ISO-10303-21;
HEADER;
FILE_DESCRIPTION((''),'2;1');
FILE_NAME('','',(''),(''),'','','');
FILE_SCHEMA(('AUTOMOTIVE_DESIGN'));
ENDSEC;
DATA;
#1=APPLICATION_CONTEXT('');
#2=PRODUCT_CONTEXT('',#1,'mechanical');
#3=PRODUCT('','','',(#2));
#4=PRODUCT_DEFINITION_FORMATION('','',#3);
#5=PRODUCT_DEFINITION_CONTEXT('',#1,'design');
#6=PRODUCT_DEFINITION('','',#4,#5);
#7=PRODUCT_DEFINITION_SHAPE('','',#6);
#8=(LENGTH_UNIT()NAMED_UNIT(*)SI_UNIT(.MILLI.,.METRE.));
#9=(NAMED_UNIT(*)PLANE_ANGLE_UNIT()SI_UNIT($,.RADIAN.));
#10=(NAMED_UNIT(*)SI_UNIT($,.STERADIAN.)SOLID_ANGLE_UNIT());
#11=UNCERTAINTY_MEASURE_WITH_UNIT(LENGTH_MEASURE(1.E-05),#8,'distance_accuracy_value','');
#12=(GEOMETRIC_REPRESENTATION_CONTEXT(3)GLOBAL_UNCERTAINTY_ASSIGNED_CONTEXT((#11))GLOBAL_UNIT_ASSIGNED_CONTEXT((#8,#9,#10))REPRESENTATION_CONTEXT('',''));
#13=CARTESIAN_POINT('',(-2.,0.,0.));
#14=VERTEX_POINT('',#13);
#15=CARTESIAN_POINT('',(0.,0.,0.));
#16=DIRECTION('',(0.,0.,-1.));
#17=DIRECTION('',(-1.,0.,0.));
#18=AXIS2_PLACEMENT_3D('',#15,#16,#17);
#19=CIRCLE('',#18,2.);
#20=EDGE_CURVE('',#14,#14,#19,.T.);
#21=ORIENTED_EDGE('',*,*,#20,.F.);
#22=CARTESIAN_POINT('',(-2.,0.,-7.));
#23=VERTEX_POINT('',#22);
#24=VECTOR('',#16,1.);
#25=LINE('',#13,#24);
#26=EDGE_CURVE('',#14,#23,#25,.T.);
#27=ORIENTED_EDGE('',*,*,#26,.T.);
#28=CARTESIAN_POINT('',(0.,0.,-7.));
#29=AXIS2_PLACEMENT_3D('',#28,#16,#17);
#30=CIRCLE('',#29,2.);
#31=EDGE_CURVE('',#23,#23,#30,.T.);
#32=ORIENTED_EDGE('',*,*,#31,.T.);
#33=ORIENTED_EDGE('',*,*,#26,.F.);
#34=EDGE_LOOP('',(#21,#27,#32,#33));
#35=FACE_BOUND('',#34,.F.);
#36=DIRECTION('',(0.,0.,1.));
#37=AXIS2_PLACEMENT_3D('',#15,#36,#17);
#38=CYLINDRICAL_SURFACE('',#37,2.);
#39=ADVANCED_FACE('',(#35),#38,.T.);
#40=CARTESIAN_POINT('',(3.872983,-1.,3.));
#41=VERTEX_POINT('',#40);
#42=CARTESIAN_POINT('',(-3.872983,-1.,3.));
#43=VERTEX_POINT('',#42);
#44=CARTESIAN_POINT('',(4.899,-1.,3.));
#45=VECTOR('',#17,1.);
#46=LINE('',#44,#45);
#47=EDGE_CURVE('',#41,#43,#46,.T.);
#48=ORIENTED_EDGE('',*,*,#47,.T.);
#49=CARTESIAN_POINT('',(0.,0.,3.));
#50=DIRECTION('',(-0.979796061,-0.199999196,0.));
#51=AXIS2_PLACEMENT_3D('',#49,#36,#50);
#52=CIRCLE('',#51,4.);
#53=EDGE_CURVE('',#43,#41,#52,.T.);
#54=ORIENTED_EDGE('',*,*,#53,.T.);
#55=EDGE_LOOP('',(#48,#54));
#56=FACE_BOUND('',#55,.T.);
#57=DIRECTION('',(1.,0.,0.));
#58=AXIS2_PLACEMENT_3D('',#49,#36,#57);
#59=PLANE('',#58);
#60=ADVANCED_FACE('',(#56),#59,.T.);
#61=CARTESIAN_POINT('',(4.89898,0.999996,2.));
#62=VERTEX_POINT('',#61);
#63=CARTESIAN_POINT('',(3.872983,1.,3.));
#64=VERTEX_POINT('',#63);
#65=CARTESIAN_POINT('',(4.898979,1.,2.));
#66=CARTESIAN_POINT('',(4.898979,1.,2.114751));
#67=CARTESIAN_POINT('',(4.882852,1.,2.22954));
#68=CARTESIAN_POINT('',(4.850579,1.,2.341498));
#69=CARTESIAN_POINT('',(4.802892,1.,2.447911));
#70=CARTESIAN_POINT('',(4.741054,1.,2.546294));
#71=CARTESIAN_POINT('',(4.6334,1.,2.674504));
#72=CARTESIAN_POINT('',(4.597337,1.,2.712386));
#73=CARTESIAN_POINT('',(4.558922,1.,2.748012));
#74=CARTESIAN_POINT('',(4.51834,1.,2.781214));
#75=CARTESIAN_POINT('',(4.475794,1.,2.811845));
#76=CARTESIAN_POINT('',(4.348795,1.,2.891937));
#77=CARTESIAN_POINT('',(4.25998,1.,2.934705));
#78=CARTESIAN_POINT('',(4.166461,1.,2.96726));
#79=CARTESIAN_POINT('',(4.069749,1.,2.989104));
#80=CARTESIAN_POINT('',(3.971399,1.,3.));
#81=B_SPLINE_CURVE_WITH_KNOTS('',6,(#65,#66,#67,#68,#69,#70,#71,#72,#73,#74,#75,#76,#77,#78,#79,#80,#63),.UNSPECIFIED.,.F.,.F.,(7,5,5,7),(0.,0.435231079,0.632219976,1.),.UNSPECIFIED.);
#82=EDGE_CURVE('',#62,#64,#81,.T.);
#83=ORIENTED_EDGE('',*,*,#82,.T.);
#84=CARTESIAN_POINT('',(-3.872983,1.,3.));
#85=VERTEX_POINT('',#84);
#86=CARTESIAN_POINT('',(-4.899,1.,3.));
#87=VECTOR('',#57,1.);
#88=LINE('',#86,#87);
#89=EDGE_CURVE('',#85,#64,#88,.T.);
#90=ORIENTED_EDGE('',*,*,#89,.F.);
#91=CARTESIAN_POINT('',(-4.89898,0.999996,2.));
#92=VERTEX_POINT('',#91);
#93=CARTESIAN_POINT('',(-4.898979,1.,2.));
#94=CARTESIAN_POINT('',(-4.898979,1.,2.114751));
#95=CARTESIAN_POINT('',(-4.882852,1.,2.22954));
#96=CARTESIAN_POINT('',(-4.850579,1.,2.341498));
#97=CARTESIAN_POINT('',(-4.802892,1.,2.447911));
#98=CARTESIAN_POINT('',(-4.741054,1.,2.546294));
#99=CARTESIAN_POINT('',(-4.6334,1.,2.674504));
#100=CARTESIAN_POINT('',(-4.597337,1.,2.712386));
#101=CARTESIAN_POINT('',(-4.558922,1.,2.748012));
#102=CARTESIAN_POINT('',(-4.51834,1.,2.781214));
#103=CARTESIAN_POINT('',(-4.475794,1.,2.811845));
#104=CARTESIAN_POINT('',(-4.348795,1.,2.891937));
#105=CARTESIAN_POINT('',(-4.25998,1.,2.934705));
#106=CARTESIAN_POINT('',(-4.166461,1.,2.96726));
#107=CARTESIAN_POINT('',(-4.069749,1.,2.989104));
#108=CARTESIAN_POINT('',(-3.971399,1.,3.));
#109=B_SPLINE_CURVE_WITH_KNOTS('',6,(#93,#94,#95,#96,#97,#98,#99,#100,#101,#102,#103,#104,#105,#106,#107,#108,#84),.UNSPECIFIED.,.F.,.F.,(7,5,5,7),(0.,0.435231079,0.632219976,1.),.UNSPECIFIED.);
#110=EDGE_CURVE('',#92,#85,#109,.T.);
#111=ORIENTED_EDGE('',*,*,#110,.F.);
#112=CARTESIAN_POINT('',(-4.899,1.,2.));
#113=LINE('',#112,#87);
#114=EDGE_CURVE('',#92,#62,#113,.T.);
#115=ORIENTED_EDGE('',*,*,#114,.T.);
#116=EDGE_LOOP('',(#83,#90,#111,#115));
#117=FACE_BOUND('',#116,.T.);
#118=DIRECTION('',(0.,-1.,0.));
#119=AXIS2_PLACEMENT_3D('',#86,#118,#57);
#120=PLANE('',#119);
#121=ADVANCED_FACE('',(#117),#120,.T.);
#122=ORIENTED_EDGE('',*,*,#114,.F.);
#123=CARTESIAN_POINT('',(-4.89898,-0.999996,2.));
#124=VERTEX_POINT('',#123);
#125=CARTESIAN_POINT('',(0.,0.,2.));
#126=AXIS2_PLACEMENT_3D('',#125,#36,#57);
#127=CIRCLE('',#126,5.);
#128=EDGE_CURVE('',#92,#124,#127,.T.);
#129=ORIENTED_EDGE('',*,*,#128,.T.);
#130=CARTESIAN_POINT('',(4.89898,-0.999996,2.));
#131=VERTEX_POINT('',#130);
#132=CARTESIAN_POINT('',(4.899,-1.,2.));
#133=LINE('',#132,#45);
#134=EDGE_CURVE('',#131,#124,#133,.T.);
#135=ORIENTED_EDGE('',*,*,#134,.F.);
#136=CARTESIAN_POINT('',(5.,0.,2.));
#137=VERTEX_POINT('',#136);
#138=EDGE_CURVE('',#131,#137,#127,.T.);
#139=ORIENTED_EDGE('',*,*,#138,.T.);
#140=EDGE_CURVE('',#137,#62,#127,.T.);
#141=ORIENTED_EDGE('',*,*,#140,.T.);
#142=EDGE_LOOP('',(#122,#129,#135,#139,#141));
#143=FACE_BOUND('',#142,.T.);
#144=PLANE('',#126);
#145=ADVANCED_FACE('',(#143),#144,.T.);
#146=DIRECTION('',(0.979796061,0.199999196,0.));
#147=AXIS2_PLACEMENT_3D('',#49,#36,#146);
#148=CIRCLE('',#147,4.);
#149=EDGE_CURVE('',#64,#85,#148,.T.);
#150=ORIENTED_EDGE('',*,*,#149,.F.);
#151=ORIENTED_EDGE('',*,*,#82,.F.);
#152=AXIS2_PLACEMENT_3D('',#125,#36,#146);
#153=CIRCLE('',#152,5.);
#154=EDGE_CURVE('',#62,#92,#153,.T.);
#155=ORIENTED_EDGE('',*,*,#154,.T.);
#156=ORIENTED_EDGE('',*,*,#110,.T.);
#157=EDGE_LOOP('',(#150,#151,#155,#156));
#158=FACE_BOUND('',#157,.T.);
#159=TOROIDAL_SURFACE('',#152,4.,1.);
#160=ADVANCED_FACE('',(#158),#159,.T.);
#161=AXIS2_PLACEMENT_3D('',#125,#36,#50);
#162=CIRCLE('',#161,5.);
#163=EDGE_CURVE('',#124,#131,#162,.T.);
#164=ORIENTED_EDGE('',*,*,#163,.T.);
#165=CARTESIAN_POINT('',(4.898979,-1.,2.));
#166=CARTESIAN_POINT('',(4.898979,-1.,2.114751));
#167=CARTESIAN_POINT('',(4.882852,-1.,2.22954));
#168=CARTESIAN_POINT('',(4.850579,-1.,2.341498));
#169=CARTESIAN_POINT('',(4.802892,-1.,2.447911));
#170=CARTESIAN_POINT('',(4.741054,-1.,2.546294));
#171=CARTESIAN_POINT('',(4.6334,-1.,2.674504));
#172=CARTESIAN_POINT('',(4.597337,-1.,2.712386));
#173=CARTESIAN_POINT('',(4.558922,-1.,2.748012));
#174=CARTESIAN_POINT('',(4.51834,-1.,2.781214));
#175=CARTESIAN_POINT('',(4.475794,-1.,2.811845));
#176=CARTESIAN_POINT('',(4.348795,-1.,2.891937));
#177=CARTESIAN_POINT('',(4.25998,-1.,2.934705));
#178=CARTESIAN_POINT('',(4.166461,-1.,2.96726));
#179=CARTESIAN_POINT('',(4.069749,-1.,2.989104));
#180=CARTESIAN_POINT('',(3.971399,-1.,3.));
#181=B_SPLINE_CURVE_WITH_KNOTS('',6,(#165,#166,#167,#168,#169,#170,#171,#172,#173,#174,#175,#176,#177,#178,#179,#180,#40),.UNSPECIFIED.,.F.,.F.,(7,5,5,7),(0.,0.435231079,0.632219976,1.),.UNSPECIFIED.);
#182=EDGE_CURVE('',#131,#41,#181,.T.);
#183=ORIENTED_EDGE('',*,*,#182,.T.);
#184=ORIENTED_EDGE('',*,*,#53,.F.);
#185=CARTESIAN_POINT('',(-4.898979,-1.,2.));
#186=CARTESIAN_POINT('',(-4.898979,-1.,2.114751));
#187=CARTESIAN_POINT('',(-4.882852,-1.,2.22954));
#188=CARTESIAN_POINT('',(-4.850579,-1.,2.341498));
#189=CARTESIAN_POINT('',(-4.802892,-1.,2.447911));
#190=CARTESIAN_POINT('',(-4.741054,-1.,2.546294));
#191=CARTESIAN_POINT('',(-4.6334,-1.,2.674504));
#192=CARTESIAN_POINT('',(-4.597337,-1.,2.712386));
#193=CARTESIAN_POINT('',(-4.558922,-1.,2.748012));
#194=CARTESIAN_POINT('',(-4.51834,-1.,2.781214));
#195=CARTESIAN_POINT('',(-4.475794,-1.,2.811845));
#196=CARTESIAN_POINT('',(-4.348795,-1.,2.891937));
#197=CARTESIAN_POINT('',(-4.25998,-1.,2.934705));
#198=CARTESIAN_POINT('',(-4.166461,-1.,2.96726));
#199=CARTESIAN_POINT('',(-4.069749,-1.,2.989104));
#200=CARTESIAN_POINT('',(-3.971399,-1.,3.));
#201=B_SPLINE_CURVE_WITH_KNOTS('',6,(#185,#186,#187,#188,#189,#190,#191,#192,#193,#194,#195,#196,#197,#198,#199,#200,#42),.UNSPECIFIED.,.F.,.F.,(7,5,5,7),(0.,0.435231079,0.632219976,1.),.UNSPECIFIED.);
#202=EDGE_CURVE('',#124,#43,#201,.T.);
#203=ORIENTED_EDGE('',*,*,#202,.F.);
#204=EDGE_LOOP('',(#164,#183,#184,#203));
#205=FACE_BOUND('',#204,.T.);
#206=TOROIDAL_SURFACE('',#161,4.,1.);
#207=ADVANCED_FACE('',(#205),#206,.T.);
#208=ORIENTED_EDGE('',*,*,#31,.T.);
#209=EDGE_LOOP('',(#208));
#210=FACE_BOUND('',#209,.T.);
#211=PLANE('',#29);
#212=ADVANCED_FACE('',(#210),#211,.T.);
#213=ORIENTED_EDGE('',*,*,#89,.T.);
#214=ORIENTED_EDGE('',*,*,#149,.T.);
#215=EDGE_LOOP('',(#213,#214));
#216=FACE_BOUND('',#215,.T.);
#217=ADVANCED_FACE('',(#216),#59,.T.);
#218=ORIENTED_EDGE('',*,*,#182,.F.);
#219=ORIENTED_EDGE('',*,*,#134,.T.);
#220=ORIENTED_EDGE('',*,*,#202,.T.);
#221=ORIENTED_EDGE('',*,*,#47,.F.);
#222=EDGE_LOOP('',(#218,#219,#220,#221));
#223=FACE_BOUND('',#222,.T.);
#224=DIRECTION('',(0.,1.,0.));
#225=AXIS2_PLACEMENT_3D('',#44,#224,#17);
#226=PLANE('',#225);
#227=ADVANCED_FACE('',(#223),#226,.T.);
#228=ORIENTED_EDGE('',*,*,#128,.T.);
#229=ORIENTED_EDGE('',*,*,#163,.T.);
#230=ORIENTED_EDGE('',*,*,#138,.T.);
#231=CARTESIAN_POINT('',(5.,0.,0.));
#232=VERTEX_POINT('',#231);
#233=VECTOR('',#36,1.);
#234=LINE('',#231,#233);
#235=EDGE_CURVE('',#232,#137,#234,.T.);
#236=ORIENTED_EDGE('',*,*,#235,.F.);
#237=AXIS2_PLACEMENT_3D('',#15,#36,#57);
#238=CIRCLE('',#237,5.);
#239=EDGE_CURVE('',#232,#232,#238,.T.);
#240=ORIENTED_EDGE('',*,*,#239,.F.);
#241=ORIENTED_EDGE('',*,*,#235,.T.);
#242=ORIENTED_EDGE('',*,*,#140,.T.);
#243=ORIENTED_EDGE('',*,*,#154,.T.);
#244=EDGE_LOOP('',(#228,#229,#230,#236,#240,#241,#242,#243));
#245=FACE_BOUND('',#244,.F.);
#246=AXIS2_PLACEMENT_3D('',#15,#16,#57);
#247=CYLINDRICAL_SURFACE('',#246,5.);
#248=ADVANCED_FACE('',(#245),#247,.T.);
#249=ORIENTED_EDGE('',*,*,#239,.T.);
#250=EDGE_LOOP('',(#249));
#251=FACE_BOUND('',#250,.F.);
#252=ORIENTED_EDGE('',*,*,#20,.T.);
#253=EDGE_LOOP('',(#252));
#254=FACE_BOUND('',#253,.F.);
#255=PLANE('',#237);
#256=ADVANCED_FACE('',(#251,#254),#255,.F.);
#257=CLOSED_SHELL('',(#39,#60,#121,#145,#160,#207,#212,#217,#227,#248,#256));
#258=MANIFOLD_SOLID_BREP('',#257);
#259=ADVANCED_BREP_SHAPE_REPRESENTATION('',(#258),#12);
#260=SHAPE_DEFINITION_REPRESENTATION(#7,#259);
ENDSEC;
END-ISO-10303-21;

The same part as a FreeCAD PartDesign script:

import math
import FreeCAD as App
import Part
import Sketcher
Q = App.Units.Quantity


def edges_at(feature, points):
    """Names of the edges that pass closest to the given points."""
    edges = feature.Shape.Edges
    near = lambda p: min(range(len(edges)), key=lambda i: edges[i].distToShape(Part.Vertex(*p))[0])
    return sorted({f"Edge{near(p) + 1}" for p in points})

doc = App.newDocument("Part")
params = doc.addObject("Spreadsheet::Sheet", "Params")
for row, (alias, value) in enumerate([
    ("sketch1_diameter", "10 mm"),
    ("pad1_length", "3 mm"),
    ("sketch2_radius", "5 mm"),
    ("pocket1_length", "1 mm"),
    ("fillet_radius", "1 mm"),
    ("sketch3_diameter", "4 mm"),
    ("pad2_length", "7 mm"),
], start=1):
    params.set(f"A{row}", alias)
    params.set(f"B{row}", "=" + value)
    params.setAlias(f"B{row}", alias)

body = doc.addObject("PartDesign::Body", "Body")

# Sketch on XY plane
sketch1 = body.newObject("Sketcher::SketchObject", "Sketch")
sketch1.AttachmentSupport = (doc.getObject("XY_Plane"), [""])
sketch1.MapMode = "FlatFace"
sketch1.addGeometry(Part.Circle(App.Vector(0, 0, 0), App.Vector(0, 0, 1), 5), False)
sketch1.addConstraint([
    Sketcher.Constraint("Coincident", 0, 3, -1, 1),
    Sketcher.Constraint("Diameter", 0, Q("10 mm")),
])
sketch1.setExpression("Constraints[1]", "Params.sketch1_diameter")
pad1 = body.newObject("PartDesign::Pad", "Pad")
pad1.Profile = sketch1
pad1.setExpression("Length", "Params.pad1_length")

# Sketch on XY plane
sketch2 = body.newObject("Sketcher::SketchObject", "Sketch001")
sketch2.AttachmentSupport = (doc.getObject("XY_Plane"), [""])
sketch2.MapMode = "FlatFace"
sketch2.AttachmentOffset = App.Placement(App.Vector(0, 0, 3), App.Rotation())
sketch2.addGeometry([
    Part.ArcOfCircle(Part.Circle(App.Vector(0, 0, 0), App.Vector(0, 0, 1), 5), math.radians(-12), math.radians(12)),
    Part.LineSegment(App.Vector(4.9, 1, 0), App.Vector(-4.9, 1, 0)),
    Part.ArcOfCircle(Part.Circle(App.Vector(0, 0, 0), App.Vector(0, 0, 1), 5), math.radians(168), math.radians(192)),
    Part.LineSegment(App.Vector(-4.9, -1, 0), App.Vector(4.9, -1, 0)),
], False)
sketch2.addConstraint([
    Sketcher.Constraint("Coincident", 0, 2, 1, 1),
    Sketcher.Constraint("Coincident", 1, 2, 2, 1),
    Sketcher.Constraint("Coincident", 2, 2, 3, 1),
    Sketcher.Constraint("Coincident", 3, 2, 0, 1),
    Sketcher.Constraint("Horizontal", 1),
    Sketcher.Constraint("Horizontal", 3),
    Sketcher.Constraint("Coincident", 0, 3, -1, 1),
    Sketcher.Constraint("Coincident", 2, 3, -1, 1),
    Sketcher.Constraint("Equal", 0, 2),
    Sketcher.Constraint("Vertical", 1, 2, 2, 2),
    Sketcher.Constraint("DistanceY", -1, 1, 0, 2, Q("1 mm")),
    Sketcher.Constraint("Radius", 0, Q("5 mm")),
])
sketch2.setExpression("Constraints[11]", "Params.sketch2_radius")
pocket1 = body.newObject("PartDesign::Pocket", "Pocket")
pocket1.Profile = sketch2
pocket1.setExpression("Length", "Params.pocket1_length")
doc.recompute()

fillet = body.newObject("PartDesign::Fillet", "Fillet")
fillet.Base = (pocket1, edges_at(pocket1, [(0, 5, 3), (0, -5, 3)]))
fillet.setExpression("Radius", "Params.fillet_radius")

# Sketch on XY plane
sketch3 = body.newObject("Sketcher::SketchObject", "Sketch002")
sketch3.AttachmentSupport = (doc.getObject("XY_Plane"), [""])
sketch3.MapMode = "FlatFace"
sketch3.addGeometry(Part.Circle(App.Vector(0, 0, 0), App.Vector(0, 0, 1), 2), False)
sketch3.addConstraint([
    Sketcher.Constraint("Coincident", 0, 3, -1, 1),
    Sketcher.Constraint("Diameter", 0, Q("4 mm")),
])
sketch3.setExpression("Constraints[1]", "Params.sketch3_diameter")
pad2 = body.newObject("PartDesign::Pad", "Pad001")
pad2.Profile = sketch3
pad2.setExpression("Length", "Params.pad2_length")
pad2.Reversed = True

doc.recompute()
